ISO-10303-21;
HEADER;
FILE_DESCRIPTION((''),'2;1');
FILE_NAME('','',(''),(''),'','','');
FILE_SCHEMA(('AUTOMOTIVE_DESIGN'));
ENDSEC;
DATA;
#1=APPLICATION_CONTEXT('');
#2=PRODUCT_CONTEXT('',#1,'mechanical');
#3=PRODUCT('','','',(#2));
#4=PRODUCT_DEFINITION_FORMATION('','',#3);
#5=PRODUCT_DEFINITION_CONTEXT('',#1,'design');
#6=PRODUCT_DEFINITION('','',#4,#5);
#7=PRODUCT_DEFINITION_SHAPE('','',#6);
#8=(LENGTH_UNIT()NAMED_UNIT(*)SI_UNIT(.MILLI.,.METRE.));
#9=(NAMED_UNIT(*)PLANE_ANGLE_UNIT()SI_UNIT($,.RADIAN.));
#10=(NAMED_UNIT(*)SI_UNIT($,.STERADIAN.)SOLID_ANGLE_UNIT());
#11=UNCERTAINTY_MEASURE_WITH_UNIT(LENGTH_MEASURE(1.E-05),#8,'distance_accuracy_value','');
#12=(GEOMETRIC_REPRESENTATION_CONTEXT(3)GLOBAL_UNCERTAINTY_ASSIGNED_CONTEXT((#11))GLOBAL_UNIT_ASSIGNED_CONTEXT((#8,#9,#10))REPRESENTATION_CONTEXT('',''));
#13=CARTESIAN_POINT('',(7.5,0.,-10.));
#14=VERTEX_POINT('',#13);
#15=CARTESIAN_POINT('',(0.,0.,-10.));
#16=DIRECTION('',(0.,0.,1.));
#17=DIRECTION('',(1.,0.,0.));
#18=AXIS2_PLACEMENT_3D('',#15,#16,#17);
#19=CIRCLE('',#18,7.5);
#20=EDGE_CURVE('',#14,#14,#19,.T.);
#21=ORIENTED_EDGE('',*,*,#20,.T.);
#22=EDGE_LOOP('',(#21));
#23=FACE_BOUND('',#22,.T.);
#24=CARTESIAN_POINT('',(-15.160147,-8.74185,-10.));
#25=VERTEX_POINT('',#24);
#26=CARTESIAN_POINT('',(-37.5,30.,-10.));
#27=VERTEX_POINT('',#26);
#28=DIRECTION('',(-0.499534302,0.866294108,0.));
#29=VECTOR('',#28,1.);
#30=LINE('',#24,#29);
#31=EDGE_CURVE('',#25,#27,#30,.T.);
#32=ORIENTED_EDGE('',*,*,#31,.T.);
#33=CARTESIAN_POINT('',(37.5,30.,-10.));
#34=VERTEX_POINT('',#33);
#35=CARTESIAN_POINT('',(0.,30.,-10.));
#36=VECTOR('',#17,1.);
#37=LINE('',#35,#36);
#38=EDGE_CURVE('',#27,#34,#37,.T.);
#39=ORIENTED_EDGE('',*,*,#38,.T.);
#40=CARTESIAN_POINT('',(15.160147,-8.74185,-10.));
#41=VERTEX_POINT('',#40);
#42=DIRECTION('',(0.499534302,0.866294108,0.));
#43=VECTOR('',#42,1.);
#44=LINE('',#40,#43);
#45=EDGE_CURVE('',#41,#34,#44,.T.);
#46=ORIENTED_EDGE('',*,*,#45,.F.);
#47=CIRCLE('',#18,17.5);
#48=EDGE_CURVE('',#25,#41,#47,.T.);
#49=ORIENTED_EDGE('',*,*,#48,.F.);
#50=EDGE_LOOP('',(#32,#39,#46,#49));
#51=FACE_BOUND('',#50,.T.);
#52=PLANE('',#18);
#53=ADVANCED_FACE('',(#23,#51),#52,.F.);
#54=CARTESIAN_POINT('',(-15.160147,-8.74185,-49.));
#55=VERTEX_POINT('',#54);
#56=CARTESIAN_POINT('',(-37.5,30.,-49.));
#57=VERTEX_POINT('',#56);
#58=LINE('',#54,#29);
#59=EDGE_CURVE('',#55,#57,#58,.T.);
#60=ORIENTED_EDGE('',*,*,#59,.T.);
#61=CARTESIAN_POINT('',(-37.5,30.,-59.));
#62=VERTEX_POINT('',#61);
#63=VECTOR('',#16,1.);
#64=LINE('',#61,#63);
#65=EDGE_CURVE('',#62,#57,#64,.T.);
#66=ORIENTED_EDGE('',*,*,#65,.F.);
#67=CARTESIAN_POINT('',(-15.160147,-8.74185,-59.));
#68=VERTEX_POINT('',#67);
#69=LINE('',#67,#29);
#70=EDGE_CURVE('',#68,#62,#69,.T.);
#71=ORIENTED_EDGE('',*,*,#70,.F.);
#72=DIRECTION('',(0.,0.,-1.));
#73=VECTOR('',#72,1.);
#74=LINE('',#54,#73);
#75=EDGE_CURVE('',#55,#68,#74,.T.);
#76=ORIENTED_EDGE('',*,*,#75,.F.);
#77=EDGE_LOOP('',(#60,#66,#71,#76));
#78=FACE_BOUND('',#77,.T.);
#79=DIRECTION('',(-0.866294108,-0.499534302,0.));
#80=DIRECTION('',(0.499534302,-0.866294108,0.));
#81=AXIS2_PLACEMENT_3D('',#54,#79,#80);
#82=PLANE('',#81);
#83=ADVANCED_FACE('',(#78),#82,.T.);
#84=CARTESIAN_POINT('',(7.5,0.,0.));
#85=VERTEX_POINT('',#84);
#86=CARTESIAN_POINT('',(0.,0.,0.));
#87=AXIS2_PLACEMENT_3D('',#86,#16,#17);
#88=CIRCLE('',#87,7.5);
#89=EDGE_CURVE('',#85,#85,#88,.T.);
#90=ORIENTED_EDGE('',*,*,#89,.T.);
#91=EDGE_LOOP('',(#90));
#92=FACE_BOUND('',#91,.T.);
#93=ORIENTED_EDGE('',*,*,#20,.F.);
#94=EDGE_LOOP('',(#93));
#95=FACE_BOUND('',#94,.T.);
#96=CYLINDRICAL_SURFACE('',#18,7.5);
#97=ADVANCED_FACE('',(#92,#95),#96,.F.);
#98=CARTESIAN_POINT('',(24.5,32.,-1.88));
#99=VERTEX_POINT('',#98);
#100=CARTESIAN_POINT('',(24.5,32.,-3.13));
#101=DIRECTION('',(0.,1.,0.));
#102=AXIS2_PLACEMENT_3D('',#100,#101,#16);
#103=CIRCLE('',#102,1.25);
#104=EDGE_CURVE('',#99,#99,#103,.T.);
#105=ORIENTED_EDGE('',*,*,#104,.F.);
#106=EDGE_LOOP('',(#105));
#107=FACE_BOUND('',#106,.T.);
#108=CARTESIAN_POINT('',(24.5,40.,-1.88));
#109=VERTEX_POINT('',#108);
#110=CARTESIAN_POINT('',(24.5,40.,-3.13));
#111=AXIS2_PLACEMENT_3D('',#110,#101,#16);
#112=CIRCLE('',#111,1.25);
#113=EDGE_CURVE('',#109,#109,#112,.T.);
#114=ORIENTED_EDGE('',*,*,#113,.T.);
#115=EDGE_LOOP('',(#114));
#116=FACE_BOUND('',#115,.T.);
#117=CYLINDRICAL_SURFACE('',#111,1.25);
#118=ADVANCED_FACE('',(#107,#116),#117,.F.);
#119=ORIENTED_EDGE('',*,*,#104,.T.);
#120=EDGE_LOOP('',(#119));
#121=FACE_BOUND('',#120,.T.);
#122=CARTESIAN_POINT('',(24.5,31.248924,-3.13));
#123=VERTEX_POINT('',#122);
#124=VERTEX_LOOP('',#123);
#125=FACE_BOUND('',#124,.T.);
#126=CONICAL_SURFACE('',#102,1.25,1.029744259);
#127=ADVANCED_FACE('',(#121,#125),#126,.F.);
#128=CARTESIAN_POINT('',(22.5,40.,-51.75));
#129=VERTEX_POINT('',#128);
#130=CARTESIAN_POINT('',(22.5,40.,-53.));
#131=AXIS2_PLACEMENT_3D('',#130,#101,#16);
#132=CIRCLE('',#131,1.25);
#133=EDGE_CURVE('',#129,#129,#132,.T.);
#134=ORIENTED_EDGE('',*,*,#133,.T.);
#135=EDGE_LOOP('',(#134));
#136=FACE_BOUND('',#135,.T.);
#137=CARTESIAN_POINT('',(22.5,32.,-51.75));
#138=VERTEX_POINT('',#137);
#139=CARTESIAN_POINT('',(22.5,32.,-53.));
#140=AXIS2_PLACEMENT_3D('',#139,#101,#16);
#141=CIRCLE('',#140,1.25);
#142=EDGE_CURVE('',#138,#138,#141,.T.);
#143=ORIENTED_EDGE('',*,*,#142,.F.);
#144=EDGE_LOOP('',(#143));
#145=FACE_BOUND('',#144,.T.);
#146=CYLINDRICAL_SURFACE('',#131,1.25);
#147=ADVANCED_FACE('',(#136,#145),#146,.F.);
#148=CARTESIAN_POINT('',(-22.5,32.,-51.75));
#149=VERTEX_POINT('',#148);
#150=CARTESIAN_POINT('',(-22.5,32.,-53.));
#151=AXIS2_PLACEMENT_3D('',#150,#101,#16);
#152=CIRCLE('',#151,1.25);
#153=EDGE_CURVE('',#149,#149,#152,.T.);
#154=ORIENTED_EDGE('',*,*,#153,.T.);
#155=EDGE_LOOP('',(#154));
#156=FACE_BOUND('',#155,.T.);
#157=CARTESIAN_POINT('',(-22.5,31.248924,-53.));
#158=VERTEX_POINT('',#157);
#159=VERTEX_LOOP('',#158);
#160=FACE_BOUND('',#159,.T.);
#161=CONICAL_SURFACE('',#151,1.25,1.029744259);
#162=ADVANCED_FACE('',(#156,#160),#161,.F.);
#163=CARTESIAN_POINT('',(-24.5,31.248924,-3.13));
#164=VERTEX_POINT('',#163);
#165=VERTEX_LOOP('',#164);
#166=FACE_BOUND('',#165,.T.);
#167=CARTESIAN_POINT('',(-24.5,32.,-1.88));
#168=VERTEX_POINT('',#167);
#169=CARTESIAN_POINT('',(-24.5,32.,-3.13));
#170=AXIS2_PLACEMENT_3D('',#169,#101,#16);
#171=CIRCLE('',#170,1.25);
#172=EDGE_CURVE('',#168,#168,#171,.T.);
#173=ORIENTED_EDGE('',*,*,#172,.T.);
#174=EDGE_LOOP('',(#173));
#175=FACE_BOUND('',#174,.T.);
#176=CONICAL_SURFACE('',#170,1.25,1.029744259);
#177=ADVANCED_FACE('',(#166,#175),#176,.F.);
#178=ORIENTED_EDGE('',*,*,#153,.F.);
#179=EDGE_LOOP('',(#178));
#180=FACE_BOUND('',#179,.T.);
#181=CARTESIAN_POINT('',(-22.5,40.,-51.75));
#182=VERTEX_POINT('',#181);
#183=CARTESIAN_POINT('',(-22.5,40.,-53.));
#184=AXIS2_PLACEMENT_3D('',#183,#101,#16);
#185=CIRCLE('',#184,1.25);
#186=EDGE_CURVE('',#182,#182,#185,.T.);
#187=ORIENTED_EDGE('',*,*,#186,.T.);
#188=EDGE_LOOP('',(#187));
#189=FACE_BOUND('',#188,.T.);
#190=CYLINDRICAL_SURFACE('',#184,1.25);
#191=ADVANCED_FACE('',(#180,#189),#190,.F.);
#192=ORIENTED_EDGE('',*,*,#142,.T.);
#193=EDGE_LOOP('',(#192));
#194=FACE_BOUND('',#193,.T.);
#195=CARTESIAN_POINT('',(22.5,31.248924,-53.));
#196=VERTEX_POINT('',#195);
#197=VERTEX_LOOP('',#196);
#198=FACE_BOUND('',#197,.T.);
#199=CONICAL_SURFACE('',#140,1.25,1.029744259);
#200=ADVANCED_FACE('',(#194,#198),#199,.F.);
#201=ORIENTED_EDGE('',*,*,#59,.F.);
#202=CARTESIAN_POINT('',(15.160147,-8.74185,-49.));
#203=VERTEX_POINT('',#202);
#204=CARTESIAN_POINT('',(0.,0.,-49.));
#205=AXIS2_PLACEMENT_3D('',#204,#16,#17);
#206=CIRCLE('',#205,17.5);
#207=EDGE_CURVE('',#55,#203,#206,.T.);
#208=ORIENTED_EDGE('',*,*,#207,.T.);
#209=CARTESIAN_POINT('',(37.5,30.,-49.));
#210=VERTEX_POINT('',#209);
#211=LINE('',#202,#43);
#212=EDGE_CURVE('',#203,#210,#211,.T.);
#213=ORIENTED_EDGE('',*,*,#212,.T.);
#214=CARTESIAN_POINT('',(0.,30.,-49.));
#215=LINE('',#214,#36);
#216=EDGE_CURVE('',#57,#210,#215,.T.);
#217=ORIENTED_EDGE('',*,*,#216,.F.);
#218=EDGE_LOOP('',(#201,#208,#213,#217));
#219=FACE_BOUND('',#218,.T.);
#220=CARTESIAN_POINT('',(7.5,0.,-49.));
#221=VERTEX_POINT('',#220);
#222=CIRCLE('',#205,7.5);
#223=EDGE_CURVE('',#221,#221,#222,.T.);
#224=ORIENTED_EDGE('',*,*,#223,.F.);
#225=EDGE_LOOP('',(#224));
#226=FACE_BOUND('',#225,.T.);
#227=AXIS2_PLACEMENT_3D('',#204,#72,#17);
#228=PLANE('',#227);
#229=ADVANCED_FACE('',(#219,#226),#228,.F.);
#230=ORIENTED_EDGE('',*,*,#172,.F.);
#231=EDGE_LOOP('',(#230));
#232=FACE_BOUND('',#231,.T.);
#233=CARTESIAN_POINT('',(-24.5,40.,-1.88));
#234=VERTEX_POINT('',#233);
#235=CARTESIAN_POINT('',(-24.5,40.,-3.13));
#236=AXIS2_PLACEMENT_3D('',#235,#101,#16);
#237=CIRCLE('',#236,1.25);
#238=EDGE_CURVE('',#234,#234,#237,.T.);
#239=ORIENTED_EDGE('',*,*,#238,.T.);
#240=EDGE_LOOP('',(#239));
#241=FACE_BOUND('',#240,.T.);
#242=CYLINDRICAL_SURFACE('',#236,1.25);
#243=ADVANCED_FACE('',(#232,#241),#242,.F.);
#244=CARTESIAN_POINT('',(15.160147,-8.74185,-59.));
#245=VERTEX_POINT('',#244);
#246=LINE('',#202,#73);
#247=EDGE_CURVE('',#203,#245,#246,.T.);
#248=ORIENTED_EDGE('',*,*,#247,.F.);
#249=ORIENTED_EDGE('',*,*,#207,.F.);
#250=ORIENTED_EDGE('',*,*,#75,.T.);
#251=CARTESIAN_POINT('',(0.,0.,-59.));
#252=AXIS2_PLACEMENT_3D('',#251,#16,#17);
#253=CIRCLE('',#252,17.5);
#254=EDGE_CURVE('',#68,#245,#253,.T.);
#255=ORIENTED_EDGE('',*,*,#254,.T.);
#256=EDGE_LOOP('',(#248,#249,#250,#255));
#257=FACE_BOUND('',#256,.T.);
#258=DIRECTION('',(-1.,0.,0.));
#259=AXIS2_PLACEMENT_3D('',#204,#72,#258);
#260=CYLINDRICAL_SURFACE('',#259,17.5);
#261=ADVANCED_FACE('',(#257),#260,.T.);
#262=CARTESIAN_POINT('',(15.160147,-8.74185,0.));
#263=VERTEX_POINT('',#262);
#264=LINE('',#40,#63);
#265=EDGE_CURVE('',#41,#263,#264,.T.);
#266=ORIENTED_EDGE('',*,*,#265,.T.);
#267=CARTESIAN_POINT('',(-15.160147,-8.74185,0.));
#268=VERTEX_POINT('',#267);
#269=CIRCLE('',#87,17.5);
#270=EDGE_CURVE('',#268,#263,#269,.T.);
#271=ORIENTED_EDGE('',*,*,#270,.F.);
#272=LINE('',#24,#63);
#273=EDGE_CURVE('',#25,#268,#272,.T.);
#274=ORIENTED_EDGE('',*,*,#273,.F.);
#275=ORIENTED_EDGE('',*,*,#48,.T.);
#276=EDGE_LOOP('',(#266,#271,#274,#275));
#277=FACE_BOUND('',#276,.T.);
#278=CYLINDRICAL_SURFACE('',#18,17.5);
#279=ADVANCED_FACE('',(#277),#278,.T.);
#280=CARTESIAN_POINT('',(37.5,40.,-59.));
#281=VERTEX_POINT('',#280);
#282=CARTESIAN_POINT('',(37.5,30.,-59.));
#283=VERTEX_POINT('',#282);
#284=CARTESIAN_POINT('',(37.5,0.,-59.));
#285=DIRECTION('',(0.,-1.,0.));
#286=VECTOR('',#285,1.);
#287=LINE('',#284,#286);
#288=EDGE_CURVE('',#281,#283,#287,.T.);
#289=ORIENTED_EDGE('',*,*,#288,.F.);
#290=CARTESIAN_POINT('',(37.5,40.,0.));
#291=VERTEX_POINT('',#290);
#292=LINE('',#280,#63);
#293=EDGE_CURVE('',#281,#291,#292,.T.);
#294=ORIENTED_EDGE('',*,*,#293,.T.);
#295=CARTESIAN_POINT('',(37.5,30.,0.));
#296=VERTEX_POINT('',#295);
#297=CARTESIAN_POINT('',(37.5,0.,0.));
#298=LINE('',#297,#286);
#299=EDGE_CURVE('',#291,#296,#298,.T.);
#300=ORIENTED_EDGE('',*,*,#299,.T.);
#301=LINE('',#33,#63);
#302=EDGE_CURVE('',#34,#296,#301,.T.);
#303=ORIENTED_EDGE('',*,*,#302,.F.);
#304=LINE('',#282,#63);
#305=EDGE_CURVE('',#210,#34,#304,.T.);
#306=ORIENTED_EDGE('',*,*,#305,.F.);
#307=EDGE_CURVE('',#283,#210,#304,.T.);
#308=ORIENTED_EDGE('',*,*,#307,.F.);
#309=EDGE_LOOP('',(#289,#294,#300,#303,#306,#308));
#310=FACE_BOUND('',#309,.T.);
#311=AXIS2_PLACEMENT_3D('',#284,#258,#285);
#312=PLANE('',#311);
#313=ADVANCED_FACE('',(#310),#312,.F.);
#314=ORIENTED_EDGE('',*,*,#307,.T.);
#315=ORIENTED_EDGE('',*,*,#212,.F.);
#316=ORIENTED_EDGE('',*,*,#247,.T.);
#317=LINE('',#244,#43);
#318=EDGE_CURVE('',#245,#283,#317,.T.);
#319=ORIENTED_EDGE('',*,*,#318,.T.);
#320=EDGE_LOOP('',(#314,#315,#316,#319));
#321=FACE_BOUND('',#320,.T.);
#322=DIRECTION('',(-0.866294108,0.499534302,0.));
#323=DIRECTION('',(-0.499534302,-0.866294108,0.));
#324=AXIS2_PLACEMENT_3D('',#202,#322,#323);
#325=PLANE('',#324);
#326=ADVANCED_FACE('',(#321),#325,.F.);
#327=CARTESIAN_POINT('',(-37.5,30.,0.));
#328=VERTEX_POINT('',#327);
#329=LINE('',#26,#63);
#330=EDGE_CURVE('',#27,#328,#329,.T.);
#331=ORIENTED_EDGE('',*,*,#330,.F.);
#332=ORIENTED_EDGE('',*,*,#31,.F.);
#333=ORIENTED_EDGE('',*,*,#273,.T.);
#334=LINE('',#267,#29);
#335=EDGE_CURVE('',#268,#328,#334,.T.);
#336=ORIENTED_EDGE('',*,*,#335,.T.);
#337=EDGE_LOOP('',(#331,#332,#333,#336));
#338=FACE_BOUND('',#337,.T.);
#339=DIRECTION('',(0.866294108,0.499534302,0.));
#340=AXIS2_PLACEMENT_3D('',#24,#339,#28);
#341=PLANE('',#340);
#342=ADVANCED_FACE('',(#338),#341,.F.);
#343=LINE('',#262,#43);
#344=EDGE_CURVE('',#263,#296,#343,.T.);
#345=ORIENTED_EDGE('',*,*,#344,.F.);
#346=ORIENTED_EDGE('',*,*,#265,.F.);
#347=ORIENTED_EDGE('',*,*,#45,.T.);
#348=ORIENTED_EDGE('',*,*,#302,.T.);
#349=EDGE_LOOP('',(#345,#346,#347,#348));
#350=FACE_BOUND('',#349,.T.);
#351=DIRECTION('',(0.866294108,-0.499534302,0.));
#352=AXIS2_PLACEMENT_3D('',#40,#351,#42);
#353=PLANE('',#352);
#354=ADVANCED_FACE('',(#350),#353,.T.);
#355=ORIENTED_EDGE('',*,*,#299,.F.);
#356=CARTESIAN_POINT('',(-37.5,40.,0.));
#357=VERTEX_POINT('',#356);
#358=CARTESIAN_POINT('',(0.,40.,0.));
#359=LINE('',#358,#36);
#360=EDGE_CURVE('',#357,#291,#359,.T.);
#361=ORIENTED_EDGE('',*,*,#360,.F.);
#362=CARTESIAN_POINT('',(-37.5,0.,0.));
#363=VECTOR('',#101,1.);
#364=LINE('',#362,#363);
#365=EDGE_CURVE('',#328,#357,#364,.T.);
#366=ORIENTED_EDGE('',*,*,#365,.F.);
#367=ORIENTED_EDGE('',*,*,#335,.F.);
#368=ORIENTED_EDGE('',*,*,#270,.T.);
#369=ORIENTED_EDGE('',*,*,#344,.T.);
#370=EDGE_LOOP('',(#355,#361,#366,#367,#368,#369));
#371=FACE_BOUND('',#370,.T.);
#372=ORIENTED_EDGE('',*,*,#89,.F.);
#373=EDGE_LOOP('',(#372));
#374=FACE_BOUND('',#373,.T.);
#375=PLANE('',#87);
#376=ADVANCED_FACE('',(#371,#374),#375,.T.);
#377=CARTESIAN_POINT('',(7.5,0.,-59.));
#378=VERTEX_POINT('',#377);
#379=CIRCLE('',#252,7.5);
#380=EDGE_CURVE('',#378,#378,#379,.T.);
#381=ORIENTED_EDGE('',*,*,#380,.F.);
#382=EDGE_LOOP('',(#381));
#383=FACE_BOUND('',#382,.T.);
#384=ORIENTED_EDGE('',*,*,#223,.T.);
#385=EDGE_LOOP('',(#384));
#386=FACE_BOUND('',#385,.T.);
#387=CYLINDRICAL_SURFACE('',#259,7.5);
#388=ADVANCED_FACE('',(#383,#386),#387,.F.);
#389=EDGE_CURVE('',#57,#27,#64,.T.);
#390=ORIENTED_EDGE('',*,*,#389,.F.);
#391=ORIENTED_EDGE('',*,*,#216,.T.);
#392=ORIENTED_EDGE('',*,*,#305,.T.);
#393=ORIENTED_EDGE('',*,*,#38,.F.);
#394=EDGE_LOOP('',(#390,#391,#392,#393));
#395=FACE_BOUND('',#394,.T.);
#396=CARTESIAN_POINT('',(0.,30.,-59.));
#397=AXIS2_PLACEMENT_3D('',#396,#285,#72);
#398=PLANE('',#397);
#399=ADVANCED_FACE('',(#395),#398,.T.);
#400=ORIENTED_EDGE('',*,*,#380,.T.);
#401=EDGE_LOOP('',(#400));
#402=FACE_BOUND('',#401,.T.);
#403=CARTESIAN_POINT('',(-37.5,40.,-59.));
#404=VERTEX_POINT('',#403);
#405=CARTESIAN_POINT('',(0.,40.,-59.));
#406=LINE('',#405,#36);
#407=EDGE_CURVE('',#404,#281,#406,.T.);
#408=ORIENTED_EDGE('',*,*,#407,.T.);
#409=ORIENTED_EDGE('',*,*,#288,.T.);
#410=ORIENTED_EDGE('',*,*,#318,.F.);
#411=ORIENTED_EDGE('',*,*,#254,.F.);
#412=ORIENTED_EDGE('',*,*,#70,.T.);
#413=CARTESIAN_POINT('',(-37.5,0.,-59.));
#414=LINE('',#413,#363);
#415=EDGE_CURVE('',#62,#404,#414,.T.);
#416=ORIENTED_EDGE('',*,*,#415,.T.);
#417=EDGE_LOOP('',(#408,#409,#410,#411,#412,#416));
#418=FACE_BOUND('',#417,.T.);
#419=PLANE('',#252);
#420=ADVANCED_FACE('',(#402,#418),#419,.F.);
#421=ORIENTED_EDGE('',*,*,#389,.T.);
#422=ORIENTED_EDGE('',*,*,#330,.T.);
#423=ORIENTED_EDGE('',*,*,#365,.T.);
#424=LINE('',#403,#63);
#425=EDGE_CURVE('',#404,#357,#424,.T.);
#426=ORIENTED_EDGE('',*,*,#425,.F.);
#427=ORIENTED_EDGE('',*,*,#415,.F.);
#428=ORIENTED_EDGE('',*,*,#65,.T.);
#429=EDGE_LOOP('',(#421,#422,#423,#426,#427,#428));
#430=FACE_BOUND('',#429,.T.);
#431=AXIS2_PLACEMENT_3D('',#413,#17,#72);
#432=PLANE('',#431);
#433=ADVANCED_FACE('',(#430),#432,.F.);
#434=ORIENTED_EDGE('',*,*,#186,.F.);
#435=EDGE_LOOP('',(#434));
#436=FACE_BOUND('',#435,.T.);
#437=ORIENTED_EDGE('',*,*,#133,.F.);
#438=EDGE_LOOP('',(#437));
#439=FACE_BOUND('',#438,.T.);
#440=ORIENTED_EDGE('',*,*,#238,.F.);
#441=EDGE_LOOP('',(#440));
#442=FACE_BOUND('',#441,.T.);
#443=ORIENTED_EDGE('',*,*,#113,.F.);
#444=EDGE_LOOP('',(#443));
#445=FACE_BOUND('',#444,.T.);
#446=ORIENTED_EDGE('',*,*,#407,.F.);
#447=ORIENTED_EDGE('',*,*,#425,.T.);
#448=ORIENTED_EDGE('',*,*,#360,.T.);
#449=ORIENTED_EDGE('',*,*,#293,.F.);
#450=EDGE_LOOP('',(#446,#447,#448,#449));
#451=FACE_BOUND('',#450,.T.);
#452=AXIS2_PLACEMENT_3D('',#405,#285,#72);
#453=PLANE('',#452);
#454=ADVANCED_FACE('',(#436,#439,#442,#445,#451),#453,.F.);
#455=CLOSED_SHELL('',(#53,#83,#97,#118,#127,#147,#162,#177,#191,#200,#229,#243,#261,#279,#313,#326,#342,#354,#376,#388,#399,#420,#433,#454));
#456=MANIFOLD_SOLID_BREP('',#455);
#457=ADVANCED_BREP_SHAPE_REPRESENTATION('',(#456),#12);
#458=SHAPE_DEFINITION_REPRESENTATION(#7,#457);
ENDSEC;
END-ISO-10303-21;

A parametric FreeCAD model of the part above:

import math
import FreeCAD as App
import Part
import Sketcher
Q = App.Units.Quantity

doc = App.newDocument("Part")
body = doc.addObject("PartDesign::Body", "Body")

# Sketch on XY plane
sketch1 = doc.addObject("Sketcher::SketchObject", "Sketch")
body.addObject(sketch1)
sketch1.AttachmentSupport = (doc.XY_Plane, [""])
sketch1.MapMode = "FlatFace"
sketch1.addGeometry(Part.LineSegment(App.Vector(37.5, 30, 0), App.Vector(-37.5, 30, 0)), False)
sketch1.addGeometry(Part.LineSegment(App.Vector(-37.5, 30, 0), App.Vector(-15.160147, -8.74185, 0)), False)
sketch1.addGeometry(Part.ArcOfCircle(Part.Circle(App.Vector(0, 0, 0), App.Vector(0, 0, 1), 17.5), math.radians(-150.030806), math.radians(-29.969194)), False)
sketch1.addGeometry(Part.LineSegment(App.Vector(15.160147, -8.74185, 0), App.Vector(37.5, 30, 0)), False)
sketch1.addGeometry(Part.Circle(App.Vector(0, 0, 0), App.Vector(0, 0, 1), 7.5), False)
sketch1.addConstraint(Sketcher.Constraint("Coincident", 0, 2, 1, 1))
sketch1.addConstraint(Sketcher.Constraint("Tangent", 1, 2, 2, 1))
sketch1.addConstraint(Sketcher.Constraint("Tangent", 2, 2, 3, 1))
sketch1.addConstraint(Sketcher.Constraint("Coincident", 3, 2, 0, 1))
sketch1.addConstraint(Sketcher.Constraint("Horizontal", 0))
sketch1.addConstraint(Sketcher.Constraint("Coincident", 2, 3, -1, 1))
sketch1.addConstraint(Sketcher.Constraint("Coincident", 4, 3, -1, 1))
sketch1.addConstraint(Sketcher.Constraint("Horizontal", 1, 2, 2, 2))
sketch1.addConstraint(Sketcher.Constraint("Diameter", 4, Q("15 mm")))
sketch1.addConstraint(Sketcher.Constraint("Radius", 2, Q("17.5 mm")))
sketch1.addConstraint(Sketcher.Constraint("DistanceX", 0, 2, 0, 1, Q("75 mm")))
sketch1.addConstraint(Sketcher.Constraint("DistanceY", -1, 1, 0, 2, Q("30 mm")))
pad1 = doc.addObject("PartDesign::Pad", "Pad")
body.addObject(pad1)
pad1.Profile = sketch1
pad1.Length = 10
pad1.Reversed = True

# Sketch on XY plane
sketch2 = doc.addObject("Sketcher::SketchObject", "Sketch001")
body.addObject(sketch2)
sketch2.AttachmentSupport = (doc.XY_Plane, [""])
sketch2.MapMode = "FlatFace"
sketch2.addGeometry(Part.LineSegment(App.Vector(-37.5, 40, 0), App.Vector(-37.5, 30, 0)), False)
sketch2.addGeometry(Part.LineSegment(App.Vector(-37.5, 30, 0), App.Vector(37.5, 30, 0)), False)
sketch2.addGeometry(Part.LineSegment(App.Vector(37.5, 30, 0), App.Vector(37.5, 40, 0)), False)
sketch2.addGeometry(Part.LineSegment(App.Vector(37.5, 40, 0), App.Vector(-37.5, 40, 0)), False)
sketch2.addConstraint(Sketcher.Constraint("Coincident", 0, 2, 1, 1))
sketch2.addConstraint(Sketcher.Constraint("Coincident", 1, 2, 2, 1))
sketch2.addConstraint(Sketcher.Constraint("Coincident", 2, 2, 3, 1))
sketch2.addConstraint(Sketcher.Constraint("Coincident", 3, 2, 0, 1))
sketch2.addConstraint(Sketcher.Constraint("Vertical", 0))
sketch2.addConstraint(Sketcher.Constraint("Horizontal", 1))
sketch2.addConstraint(Sketcher.Constraint("Vertical", 2))
sketch2.addConstraint(Sketcher.Constraint("Horizontal", 3))
sketch2.addConstraint(Sketcher.Constraint("DistanceX", 1, 1, 1, 2, Q("75 mm")))
sketch2.addConstraint(Sketcher.Constraint("DistanceY", 0, 2, 0, 1, Q("10 mm")))
sketch2.addConstraint(Sketcher.Constraint("DistanceY", -1, 1, 0, 2, Q("30 mm")))
sketch2.addConstraint(Sketcher.Constraint("DistanceX", 0, 2, -1, 1, Q("37.5 mm")))
pad2 = doc.addObject("PartDesign::Pad", "Pad001")
body.addObject(pad2)
pad2.Profile = sketch2
pad2.Length = 59
pad2.Reversed = True
doc.recompute()

datumplane = doc.addObject("PartDesign::Plane", "DatumPlane")
body.addObject(datumplane)
datumplane.AttachmentSupport = (doc.XY_Plane, [""])
datumplane.MapMode = "FlatFace"
datumplane.AttachmentOffset = App.Placement(App.Vector(0, 0, -29.5), App.Rotation())
mirrored = doc.addObject("PartDesign::Mirrored", "Mirrored")
body.addObject(mirrored)
mirrored.Originals = [pad1]
mirrored.MirrorPlane = (datumplane, [""])
body.Tip = mirrored

# Sketch on XZ plane
sketch3 = doc.addObject("Sketcher::SketchObject", "Sketch002")
body.addObject(sketch3)
sketch3.AttachmentSupport = (doc.XZ_Plane, [""])
sketch3.MapMode = "FlatFace"
sketch3.AttachmentOffset = App.Placement(App.Vector(0, 0, -40), App.Rotation())
sketch3.addGeometry(Part.Circle(App.Vector(-22.5, -53, 0), App.Vector(0, 0, 1), 1.25), False)
sketch3.addGeometry(Part.Circle(App.Vector(22.5, -53, 0), App.Vector(0, 0, 1), 1.25), False)
sketch3.addGeometry(Part.Circle(App.Vector(-24.5, -3.13, 0), App.Vector(0, 0, 1), 1.25), False)
sketch3.addGeometry(Part.Circle(App.Vector(24.5, -3.13, 0), App.Vector(0, 0, 1), 1.25), False)
sketch3.addConstraint(Sketcher.Constraint("Equal", 0, 1))
sketch3.addConstraint(Sketcher.Constraint("Equal", 1, 2))
sketch3.addConstraint(Sketcher.Constraint("Equal", 2, 3))
sketch3.addConstraint(Sketcher.Constraint("Symmetric", 0, 3, 1, 3, -2))
sketch3.addConstraint(Sketcher.Constraint("Symmetric", 2, 3, 3, 3, -2))
sketch3.addConstraint(Sketcher.Constraint("Diameter", 0, Q("2.5 mm")))
sketch3.addConstraint(Sketcher.Constraint("DistanceY", 0, 3, -1, 1, Q("53 mm")))
sketch3.addConstraint(Sketcher.Constraint("DistanceX", 0, 3, 1, 3, Q("45 mm")))
sketch3.addConstraint(Sketcher.Constraint("DistanceX", 2, 3, 0, 3, Q("2 mm")))
sketch3.addConstraint(Sketcher.Constraint("DistanceY", 2, 3, -1, 1, Q("3.13 mm")))
doc.recompute()
hole = doc.addObject("PartDesign::Hole", "Hole")
body.addObject(hole)
hole.Profile = sketch3
hole.ThreadType = "None"
hole.Diameter = 2.5
hole.DepthType = "Dimension"
hole.Depth = 8
hole.DrillPoint = "Angled"
hole.DrillPointAngle = 118
hole.Reversed = True

doc.recompute()
